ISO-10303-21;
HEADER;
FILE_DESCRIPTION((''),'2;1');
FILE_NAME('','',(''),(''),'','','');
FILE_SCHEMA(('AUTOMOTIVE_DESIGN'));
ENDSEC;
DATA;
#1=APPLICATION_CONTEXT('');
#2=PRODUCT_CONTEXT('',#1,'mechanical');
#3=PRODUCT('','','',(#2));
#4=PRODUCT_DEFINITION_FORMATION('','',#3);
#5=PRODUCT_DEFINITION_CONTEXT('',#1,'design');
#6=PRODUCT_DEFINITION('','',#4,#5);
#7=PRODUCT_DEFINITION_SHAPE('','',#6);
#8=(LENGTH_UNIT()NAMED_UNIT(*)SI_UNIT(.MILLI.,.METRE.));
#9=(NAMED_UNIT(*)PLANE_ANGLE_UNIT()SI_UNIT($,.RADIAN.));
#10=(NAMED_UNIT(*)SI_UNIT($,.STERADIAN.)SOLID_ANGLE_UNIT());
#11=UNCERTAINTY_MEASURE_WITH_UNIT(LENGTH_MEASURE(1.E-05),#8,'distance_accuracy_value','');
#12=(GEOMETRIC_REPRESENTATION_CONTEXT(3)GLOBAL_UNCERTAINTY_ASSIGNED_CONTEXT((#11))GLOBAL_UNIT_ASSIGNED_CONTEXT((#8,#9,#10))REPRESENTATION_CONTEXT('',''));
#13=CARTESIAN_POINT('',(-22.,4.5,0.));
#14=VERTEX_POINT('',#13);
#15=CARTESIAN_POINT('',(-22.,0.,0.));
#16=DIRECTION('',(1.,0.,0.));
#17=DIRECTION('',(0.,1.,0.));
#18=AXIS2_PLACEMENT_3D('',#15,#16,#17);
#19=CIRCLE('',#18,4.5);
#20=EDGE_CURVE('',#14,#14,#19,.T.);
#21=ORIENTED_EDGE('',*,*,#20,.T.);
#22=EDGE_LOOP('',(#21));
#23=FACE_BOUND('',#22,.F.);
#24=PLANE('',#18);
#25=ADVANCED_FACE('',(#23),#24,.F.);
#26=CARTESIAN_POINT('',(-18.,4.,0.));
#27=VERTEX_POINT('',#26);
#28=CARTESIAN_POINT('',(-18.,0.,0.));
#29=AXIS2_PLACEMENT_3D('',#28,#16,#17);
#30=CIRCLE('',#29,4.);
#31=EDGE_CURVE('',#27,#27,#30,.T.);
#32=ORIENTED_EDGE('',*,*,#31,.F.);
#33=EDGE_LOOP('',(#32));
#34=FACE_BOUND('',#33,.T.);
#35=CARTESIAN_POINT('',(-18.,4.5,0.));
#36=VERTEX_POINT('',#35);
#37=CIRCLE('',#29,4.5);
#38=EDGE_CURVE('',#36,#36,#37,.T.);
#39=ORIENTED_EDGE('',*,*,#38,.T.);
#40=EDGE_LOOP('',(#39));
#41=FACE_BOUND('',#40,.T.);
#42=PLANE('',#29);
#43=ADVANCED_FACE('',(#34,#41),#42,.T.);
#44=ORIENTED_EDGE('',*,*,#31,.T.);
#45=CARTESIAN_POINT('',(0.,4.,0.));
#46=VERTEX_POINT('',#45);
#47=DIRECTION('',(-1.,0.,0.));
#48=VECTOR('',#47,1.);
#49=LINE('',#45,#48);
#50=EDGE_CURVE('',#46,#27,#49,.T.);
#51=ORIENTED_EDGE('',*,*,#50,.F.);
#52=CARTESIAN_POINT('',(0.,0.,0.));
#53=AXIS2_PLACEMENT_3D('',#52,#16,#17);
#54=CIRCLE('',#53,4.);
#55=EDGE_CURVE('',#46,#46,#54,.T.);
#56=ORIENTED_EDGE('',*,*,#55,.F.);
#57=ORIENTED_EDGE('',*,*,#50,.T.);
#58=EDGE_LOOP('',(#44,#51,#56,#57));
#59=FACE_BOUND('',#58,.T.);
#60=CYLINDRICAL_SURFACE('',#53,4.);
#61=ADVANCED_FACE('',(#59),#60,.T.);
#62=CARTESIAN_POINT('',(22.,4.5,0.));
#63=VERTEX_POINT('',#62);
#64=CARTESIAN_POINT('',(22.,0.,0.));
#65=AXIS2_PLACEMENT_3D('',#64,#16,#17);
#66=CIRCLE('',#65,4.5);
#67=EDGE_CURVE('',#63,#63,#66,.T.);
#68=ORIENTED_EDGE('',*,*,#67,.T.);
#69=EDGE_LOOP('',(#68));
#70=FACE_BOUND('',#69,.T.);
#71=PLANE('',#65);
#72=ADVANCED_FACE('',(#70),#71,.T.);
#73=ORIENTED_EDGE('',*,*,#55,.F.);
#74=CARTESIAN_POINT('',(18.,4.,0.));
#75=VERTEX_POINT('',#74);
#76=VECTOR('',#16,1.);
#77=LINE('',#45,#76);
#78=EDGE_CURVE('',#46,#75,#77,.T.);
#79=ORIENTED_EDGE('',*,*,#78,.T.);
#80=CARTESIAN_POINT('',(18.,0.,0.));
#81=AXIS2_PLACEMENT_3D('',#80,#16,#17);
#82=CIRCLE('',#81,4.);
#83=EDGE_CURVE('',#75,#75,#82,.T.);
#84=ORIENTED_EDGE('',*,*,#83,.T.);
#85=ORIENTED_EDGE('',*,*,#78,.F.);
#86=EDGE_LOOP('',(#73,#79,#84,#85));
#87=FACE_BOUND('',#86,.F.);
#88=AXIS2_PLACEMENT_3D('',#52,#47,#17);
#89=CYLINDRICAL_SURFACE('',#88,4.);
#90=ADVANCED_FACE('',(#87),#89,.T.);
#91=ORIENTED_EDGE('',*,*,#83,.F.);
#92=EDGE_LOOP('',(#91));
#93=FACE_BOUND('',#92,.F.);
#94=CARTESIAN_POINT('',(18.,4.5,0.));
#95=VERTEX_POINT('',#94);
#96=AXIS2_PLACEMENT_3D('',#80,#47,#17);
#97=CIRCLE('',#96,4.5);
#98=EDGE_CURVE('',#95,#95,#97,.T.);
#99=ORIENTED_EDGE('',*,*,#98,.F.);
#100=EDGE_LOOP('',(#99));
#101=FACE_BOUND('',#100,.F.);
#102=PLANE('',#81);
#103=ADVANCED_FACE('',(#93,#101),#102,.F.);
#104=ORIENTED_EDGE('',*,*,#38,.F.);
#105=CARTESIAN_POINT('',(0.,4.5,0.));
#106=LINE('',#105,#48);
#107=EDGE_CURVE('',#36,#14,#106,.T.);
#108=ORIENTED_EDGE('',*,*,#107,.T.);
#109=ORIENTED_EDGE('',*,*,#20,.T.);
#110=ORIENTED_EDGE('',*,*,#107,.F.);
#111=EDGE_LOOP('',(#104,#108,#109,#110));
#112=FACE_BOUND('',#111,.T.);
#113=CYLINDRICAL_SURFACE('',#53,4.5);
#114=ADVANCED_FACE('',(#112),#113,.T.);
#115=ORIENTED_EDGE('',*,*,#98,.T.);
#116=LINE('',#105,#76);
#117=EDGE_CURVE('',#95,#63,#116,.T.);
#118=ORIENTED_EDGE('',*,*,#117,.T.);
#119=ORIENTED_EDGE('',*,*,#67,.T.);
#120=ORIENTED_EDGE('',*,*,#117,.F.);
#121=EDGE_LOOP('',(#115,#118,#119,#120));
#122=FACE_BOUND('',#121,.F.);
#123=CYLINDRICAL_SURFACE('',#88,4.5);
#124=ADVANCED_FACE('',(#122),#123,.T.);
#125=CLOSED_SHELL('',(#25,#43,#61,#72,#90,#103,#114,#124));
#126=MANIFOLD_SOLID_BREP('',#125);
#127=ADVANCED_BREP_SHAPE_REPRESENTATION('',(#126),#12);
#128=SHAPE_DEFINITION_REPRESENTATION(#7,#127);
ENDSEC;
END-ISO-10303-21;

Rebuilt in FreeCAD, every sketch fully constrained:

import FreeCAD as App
import Part
import Sketcher

V = App.Vector

doc = App.newDocument("Part")
body = doc.addObject("PartDesign::Body", "Body")

sketch1 = body.newObject("Sketcher::SketchObject", "Sketch")
sketch1.AttachmentSupport = (doc.getObject("YZ_Plane"), [""])
sketch1.MapMode = "FlatFace"
sketch1.addGeometry(Part.Circle(V(0, 0, 0), V(0, 0, 1), 4.5), False)
sketch1.addConstraint([
    Sketcher.Constraint("Coincident", 0, 3, -1, 1),
    Sketcher.Constraint("Diameter", 0, 9.0),
])
pad1 = body.newObject("PartDesign::Pad", "Pad")
pad1.Profile = sketch1
pad1.Length = 44
pad1.Midplane = True

sketch2 = body.newObject("Sketcher::SketchObject", "Sketch001")
sketch2.AttachmentSupport = (doc.getObject("YZ_Plane"), [""])
sketch2.MapMode = "FlatFace"
sketch2.addGeometry([
    Part.Circle(V(0, 0, 0), V(0, 0, 1), 5),
    Part.Circle(V(0, 0, 0), V(0, 0, 1), 4),
], False)
sketch2.addConstraint([
    Sketcher.Constraint("Coincident", 0, 3, -1, 1),
    Sketcher.Constraint("Coincident", 1, 3, -1, 1),
    Sketcher.Constraint("Diameter", 0, 10.0),
    Sketcher.Constraint("Diameter", 1, 8.0),
])
pocket1 = body.newObject("PartDesign::Pocket", "Pocket")
pocket1.Profile = sketch2
pocket1.Length = 36
pocket1.Midplane = True

doc.recompute()
